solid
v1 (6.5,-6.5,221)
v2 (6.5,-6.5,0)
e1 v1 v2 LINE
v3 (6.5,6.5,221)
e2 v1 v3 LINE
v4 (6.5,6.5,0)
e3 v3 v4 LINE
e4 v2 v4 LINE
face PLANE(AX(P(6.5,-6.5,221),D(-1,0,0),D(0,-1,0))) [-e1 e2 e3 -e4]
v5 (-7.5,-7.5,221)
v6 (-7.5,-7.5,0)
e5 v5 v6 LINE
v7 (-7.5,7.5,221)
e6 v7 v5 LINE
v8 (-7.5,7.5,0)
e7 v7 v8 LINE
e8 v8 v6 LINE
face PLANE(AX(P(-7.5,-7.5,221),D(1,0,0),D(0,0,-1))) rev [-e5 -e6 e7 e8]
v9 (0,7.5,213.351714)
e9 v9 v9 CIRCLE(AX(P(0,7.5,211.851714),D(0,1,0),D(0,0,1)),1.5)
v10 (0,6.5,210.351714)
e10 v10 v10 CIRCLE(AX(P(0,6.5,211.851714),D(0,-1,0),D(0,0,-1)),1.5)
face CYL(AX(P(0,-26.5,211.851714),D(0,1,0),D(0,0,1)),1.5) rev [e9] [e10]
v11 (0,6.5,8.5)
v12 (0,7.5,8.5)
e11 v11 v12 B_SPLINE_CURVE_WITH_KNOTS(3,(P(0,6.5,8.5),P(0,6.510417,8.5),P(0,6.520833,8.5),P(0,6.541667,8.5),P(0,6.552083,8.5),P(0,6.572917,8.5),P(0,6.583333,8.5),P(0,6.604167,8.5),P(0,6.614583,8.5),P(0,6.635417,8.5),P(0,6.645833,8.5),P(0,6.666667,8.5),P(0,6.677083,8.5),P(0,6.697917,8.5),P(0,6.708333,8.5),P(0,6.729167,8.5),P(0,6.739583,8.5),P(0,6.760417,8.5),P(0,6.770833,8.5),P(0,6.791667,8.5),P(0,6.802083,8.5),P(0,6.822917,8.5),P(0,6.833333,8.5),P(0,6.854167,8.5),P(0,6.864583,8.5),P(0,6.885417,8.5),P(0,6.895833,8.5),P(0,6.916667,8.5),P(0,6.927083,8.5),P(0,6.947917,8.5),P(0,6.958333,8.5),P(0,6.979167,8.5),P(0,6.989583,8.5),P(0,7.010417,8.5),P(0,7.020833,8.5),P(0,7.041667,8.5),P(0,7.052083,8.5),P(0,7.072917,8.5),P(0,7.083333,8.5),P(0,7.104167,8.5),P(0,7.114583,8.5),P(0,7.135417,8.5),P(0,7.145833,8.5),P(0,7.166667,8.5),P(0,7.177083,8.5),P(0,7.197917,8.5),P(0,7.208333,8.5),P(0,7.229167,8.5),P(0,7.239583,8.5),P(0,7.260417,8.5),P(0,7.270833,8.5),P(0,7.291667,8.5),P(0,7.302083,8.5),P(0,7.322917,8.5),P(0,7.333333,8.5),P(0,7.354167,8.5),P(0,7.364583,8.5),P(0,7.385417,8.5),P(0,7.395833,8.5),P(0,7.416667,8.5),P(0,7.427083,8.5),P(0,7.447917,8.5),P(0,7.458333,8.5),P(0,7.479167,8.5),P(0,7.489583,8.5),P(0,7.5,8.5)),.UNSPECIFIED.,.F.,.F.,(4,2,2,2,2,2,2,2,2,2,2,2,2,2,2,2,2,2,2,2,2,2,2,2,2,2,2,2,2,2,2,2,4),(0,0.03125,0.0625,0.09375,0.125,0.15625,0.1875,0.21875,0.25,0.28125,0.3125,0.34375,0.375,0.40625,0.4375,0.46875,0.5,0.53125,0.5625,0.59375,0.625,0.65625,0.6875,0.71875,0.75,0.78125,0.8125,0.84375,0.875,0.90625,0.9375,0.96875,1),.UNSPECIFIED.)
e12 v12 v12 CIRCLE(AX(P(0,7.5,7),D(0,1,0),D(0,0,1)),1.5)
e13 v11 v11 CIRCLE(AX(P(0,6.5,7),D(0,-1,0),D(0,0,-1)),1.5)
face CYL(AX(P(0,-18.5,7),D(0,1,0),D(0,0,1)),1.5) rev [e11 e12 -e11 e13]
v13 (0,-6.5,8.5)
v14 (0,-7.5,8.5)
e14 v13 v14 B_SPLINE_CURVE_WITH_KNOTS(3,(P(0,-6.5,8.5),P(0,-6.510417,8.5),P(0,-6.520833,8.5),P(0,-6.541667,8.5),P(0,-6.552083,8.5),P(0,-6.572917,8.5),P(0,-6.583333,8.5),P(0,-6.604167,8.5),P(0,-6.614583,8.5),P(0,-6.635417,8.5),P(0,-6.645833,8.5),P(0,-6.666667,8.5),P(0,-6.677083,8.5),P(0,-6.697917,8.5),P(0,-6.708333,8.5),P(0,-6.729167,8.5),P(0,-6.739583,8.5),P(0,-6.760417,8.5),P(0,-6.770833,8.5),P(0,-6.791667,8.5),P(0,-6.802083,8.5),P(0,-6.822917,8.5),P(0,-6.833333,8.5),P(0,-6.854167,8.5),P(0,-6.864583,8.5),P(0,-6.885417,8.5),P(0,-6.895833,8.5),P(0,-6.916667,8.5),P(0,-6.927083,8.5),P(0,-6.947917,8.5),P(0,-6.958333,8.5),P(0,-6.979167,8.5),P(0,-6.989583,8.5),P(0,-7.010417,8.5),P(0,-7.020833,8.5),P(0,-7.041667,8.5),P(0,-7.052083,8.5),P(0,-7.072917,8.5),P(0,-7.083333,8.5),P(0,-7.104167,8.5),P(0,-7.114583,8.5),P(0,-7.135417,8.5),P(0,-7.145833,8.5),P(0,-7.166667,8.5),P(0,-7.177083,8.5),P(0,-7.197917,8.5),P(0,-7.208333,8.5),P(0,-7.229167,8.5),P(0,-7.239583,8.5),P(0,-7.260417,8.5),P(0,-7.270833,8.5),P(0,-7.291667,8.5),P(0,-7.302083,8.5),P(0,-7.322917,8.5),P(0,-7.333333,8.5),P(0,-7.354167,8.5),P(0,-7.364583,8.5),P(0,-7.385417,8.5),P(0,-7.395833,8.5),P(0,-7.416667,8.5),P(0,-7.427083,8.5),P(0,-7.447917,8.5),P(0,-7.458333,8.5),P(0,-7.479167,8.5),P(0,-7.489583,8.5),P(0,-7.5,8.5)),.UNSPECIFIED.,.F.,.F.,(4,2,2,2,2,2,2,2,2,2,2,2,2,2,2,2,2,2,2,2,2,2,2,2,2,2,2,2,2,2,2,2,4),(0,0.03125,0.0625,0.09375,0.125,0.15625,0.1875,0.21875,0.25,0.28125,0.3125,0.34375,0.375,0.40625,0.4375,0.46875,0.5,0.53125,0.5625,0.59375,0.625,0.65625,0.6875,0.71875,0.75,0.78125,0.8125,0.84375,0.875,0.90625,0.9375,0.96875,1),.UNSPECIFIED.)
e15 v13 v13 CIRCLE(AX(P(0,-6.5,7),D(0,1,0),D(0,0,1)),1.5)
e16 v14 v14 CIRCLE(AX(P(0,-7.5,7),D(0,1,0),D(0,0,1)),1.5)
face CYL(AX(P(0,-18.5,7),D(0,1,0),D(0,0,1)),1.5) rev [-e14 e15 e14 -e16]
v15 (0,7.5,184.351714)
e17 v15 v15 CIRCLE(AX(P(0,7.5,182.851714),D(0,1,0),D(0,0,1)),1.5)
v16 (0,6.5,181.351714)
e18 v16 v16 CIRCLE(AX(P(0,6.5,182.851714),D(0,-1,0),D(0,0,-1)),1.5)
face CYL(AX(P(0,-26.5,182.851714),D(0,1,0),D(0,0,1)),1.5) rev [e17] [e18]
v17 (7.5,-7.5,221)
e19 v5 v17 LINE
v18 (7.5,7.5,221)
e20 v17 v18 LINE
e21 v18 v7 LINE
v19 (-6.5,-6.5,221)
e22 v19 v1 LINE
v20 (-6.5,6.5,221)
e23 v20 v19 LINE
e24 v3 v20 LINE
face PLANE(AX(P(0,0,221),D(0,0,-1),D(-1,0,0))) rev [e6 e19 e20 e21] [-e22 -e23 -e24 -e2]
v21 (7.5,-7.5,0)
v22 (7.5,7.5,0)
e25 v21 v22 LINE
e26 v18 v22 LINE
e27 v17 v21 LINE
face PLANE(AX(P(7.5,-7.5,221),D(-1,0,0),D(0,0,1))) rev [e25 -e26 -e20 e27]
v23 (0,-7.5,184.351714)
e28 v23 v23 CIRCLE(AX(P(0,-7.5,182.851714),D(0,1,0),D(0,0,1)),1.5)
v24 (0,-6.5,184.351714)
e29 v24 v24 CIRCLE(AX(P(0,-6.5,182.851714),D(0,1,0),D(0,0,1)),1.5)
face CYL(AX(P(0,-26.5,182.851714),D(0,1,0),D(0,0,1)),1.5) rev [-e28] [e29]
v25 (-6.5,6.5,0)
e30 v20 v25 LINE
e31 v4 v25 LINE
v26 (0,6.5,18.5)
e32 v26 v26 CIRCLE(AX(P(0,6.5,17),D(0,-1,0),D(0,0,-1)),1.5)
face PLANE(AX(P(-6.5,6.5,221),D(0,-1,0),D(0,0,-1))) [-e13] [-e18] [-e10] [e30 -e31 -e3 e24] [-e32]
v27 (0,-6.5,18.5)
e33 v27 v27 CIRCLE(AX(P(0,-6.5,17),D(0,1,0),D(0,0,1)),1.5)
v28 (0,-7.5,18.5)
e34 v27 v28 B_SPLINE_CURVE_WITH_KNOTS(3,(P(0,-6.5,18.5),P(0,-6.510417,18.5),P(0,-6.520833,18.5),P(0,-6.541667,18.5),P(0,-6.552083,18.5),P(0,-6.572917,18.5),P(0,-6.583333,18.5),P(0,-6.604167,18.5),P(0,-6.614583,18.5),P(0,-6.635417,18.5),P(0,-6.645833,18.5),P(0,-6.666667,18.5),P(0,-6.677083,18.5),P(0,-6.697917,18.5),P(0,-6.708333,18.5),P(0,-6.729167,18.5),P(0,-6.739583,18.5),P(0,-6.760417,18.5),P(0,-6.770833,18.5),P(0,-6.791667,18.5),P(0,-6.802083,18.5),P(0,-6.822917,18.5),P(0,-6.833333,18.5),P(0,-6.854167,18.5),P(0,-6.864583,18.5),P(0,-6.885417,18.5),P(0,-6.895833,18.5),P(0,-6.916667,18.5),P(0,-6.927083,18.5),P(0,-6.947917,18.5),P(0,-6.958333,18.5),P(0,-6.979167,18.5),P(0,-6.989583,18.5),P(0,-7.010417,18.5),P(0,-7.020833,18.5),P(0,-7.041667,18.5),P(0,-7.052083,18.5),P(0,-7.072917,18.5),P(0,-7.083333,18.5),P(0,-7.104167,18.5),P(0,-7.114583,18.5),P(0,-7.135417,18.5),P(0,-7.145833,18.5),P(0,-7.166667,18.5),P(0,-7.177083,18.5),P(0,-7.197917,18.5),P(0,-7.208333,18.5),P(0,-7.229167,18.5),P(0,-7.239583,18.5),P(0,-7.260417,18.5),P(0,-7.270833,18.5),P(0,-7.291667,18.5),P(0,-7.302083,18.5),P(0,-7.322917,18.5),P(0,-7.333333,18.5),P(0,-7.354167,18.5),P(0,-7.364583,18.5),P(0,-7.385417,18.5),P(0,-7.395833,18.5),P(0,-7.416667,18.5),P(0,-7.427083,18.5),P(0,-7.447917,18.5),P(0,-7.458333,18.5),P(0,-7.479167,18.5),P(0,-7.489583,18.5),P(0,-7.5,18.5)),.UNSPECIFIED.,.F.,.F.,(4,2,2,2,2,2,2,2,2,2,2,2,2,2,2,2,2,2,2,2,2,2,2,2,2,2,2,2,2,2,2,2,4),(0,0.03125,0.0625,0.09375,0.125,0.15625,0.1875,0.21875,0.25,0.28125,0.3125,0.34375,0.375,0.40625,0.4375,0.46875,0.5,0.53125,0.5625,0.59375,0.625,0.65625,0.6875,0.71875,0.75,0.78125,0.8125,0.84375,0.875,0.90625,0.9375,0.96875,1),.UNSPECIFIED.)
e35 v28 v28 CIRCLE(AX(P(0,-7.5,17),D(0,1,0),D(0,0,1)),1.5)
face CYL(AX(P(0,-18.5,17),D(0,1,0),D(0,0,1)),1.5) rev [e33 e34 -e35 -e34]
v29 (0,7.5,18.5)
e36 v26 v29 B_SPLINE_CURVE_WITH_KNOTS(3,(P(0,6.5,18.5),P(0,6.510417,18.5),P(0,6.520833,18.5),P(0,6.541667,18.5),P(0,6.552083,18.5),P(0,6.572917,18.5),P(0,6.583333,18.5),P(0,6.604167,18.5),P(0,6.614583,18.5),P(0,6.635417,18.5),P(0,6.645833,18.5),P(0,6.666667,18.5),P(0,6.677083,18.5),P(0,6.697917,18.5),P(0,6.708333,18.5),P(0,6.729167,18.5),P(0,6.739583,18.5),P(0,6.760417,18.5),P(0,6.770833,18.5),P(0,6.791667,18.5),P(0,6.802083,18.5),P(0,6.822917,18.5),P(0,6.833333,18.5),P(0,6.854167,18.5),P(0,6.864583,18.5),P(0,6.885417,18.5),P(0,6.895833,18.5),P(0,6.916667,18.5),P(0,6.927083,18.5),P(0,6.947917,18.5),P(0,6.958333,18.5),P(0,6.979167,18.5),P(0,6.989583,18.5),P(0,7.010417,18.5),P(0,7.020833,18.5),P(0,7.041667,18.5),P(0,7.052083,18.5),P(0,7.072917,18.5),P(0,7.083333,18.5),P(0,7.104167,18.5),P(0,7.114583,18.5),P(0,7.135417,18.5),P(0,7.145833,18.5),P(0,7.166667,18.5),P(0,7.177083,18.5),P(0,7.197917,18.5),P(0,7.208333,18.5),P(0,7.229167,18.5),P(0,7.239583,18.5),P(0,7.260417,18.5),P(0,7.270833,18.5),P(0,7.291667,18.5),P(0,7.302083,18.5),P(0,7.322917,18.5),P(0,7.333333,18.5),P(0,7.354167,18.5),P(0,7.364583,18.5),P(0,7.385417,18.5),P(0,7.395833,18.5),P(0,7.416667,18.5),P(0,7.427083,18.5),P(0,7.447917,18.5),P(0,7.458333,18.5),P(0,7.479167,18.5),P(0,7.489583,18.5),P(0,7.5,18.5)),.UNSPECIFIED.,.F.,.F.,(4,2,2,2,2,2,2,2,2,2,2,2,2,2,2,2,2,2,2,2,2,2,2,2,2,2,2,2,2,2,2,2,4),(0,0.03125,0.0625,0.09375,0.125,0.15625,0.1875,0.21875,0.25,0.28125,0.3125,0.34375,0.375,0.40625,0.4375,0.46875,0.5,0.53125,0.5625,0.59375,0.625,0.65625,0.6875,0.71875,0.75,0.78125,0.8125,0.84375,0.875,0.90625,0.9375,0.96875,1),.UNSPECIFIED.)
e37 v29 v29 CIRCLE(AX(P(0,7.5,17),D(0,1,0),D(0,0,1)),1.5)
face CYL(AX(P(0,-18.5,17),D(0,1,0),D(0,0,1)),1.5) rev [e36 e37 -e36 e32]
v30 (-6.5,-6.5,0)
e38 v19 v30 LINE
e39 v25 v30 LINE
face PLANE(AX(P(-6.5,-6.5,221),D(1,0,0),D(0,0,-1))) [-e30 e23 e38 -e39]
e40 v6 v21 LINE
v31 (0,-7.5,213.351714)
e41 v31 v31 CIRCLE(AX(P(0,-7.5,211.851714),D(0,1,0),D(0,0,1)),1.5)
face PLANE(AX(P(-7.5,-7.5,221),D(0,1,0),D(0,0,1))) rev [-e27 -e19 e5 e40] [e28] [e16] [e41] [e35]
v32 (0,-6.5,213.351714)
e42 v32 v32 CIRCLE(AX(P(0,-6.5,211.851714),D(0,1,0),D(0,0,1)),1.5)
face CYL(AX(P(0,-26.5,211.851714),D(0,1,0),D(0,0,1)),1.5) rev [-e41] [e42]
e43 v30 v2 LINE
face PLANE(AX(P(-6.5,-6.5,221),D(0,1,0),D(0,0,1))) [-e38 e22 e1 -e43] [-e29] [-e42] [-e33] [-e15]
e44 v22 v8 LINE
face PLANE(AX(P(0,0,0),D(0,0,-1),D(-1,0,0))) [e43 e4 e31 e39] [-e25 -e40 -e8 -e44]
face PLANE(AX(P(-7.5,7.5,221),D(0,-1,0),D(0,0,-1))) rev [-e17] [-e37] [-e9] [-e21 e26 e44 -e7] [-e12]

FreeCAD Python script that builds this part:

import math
import FreeCAD as App
import Part
import Sketcher
Q = App.Units.Quantity


def add_polygon(sketch, points):
    """Adds a closed chain of lines whose ends are joined by coincident constraints."""
    first, n = sketch.GeometryCount, len(points)
    for a, b in zip(points, points[1:] + points[:1]):
        sketch.addGeometry(Part.LineSegment(App.Vector(*a, 0), App.Vector(*b, 0)), False)
    for i in range(n):
        sketch.addConstraint(Sketcher.Constraint("Coincident", first + i, 2, first + (i + 1) % n, 1))

doc = App.newDocument("Part")
body = doc.addObject("PartDesign::Body", "Body")

sketch1 = doc.addObject("Sketcher::SketchObject", "Sketch")
body.addObject(sketch1)
sketch1.AttachmentSupport = (doc.XY_Plane, [""])
sketch1.MapMode = "FlatFace"
add_polygon(sketch1, [(-8, 8), (-8, -8), (8, -8), (8, 8)])
add_polygon(sketch1, [(6, -6), (-6, -6), (-6, 6), (6, 6)])
sketch1.addConstraint([
    Sketcher.Constraint("Vertical", 0),
    Sketcher.Constraint("Horizontal", 1),
    Sketcher.Constraint("Vertical", 2),
    Sketcher.Constraint("Horizontal", 3),
    Sketcher.Constraint("Horizontal", 4),
    Sketcher.Constraint("Vertical", 5),
    Sketcher.Constraint("Horizontal", 6),
    Sketcher.Constraint("Vertical", 7),
    Sketcher.Constraint("Symmetric", 0, 2, 2, 2, -1, 1),
    Sketcher.Constraint("Symmetric", 4, 2, 6, 2, -1, 1),
    Sketcher.Constraint("Equal", 3, 0),
    Sketcher.Constraint("Equal", 6, 5),
    Sketcher.Constraint("DistanceX", 1, 1, 1, 2, Q("15 mm")),
    Sketcher.Constraint("DistanceX", 4, 2, 4, 1, Q("13 mm")),
])
pad1 = doc.addObject("PartDesign::Pad", "Pad")
body.addObject(pad1)
pad1.Profile = sketch1
pad1.Length = 221

sketch2 = doc.addObject("Sketcher::SketchObject", "Sketch001")
body.addObject(sketch2)
sketch2.AttachmentSupport = (doc.XZ_Plane, [""])
sketch2.MapMode = "FlatFace"
sketch2.AttachmentOffset = App.Placement(App.Vector(0, 0, -7.5), App.Rotation())
sketch2.addGeometry([
    Part.Circle(App.Vector(0, 7, 0), App.Vector(0, 0, 1), 1.5),
    Part.Circle(App.Vector(0, 17, 0), App.Vector(0, 0, 1), 1.5),
], False)
sketch2.addConstraint([
    Sketcher.Constraint("Equal", 0, 1),
    Sketcher.Constraint("PointOnObject", 0, 3, -2),
    Sketcher.Constraint("PointOnObject", 1, 3, -2),
    Sketcher.Constraint("Diameter", 0, Q("3 mm")),
    Sketcher.Constraint("DistanceY", -1, 1, 0, 3, Q("7 mm")),
    Sketcher.Constraint("DistanceY", -1, 1, 1, 3, Q("17 mm")),
])
pocket1 = doc.addObject("PartDesign::Pocket", "Pocket")
body.addObject(pocket1)
pocket1.Profile = sketch2
pocket1.Length = 26
pocket1.Reversed = True

sketch3 = doc.addObject("Sketcher::SketchObject", "Sketch002")
body.addObject(sketch3)
sketch3.AttachmentSupport = (doc.XZ_Plane, [""])
sketch3.MapMode = "FlatFace"
sketch3.AttachmentOffset = App.Placement(App.Vector(0, 0, -7.5), App.Rotation())
sketch3.addGeometry([
    Part.ArcOfCircle(Part.Circle(App.Vector(0, 211.9, 0), App.Vector(0, 0, 1), 1.5), math.radians(-90), math.radians(0)),
    Part.ArcOfCircle(Part.Circle(App.Vector(0, 211.9, 0), App.Vector(0, 0, 1), 1.5), math.radians(90), math.radians(270)),
    Part.ArcOfCircle(Part.Circle(App.Vector(0, 211.9, 0), App.Vector(0, 0, 1), 1.5), math.radians(0), math.radians(90)),
    Part.ArcOfCircle(Part.Circle(App.Vector(0, 182.9, 0), App.Vector(0, 0, 1), 1.5), math.radians(-90), math.radians(0)),
    Part.ArcOfCircle(Part.Circle(App.Vector(0, 182.9, 0), App.Vector(0, 0, 1), 1.5), math.radians(90), math.radians(270)),
    Part.ArcOfCircle(Part.Circle(App.Vector(0, 182.9, 0), App.Vector(0, 0, 1), 1.5), math.radians(0), math.radians(90)),
], False)
sketch3.addConstraint([
    Sketcher.Constraint("Tangent", 0, 1, 1, 2),
    Sketcher.Constraint("Tangent", 1, 1, 2, 2),
    Sketcher.Constraint("Tangent", 2, 1, 0, 2),
    Sketcher.Constraint("Tangent", 3, 1, 4, 2),
    Sketcher.Constraint("Tangent", 4, 1, 5, 2),
    Sketcher.Constraint("Tangent", 5, 1, 3, 2),
    Sketcher.Constraint("Equal", 2, 3),
    Sketcher.Constraint("PointOnObject", 0, 3, -2),
    Sketcher.Constraint("PointOnObject", 3, 3, -2),
    Sketcher.Constraint("PointOnObject", 0, 1, -2),
    Sketcher.Constraint("PointOnObject", 1, 1, -2),
    Sketcher.Constraint("PointOnObject", 3, 1, -2),
    Sketcher.Constraint("PointOnObject", 4, 1, -2),
    Sketcher.Constraint("Horizontal", 1, 3, 2, 1),
    Sketcher.Constraint("Horizontal", 4, 3, 5, 1),
    Sketcher.Constraint("Radius", 0, Q("1.5 mm")),
    Sketcher.Constraint("DistanceY", 3, 3, 0, 3, Q("29 mm")),
    Sketcher.Constraint("DistanceY", -1, 1, 0, 3, Q("211.851714 mm")),
])
pocket2 = doc.addObject("PartDesign::Pocket", "Pocket001")
body.addObject(pocket2)
pocket2.Profile = sketch3
pocket2.Length = 34
pocket2.Reversed = True

doc.recompute()
